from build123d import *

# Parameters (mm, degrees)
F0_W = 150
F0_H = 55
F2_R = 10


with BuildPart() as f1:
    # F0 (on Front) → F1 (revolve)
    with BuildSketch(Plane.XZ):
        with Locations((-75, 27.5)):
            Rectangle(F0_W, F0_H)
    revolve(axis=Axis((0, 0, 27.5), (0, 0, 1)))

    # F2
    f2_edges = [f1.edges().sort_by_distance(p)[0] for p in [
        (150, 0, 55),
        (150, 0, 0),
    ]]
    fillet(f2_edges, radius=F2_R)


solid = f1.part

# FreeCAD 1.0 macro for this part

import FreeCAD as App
import Part
import Sketcher


def edges_at(feature, points):
    """Names of the edges that pass closest to the given points."""
    edges = feature.Shape.Edges
    near = lambda p: min(range(len(edges)), key=lambda i: edges[i].distToShape(Part.Vertex(*p))[0])
    return sorted({f"Edge{near(p) + 1}" for p in points})


def add_polygon(sketch, points):
    """Adds a closed chain of lines whose ends are joined by coincident constraints."""
    first, n = sketch.GeometryCount, len(points)
    for a, b in zip(points, points[1:] + points[:1]):
        sketch.addGeometry(Part.LineSegment(App.Vector(*a, 0), App.Vector(*b, 0)), False)
    for i in range(n):
        sketch.addConstraint(Sketcher.Constraint("Coincident", first + i, 2, first + (i + 1) % n, 1))

doc = App.newDocument("Part")
body = doc.addObject("PartDesign::Body", "Body")

sketch1 = body.newObject("Sketcher::SketchObject", "Sketch")
sketch1.AttachmentSupport = (doc.getObject("XZ_Plane"), [""])
sketch1.MapMode = "FlatFace"
add_polygon(sketch1, [(-150, 55), (-150, 0), (0, 0), (0, 55)])
sketch1.addConstraint([
    Sketcher.Constraint("Vertical", 0),
    Sketcher.Constraint("Horizontal", 1),
    Sketcher.Constraint("Vertical", 2),
    Sketcher.Constraint("Horizontal", 3),
    Sketcher.Constraint("Coincident", 1, 2, -1, 1),
    Sketcher.Constraint("DistanceX", 1, 1, 1, 2, 150.0),
    Sketcher.Constraint("DistanceY", 0, 2, 0, 1, 55.0),
])
revolution = body.newObject("PartDesign::Revolution", "Revolution")
revolution.Profile = sketch1
revolution.ReferenceAxis = (sketch1, ["V_Axis"])
revolution.Angle = 360
doc.recompute()

fillet = body.newObject("PartDesign::Fillet", "Fillet")
fillet.Base = (revolution, edges_at(revolution, [(150, 0, 55), (150, 0, 0)]))
fillet.Radius = 10

doc.recompute()
